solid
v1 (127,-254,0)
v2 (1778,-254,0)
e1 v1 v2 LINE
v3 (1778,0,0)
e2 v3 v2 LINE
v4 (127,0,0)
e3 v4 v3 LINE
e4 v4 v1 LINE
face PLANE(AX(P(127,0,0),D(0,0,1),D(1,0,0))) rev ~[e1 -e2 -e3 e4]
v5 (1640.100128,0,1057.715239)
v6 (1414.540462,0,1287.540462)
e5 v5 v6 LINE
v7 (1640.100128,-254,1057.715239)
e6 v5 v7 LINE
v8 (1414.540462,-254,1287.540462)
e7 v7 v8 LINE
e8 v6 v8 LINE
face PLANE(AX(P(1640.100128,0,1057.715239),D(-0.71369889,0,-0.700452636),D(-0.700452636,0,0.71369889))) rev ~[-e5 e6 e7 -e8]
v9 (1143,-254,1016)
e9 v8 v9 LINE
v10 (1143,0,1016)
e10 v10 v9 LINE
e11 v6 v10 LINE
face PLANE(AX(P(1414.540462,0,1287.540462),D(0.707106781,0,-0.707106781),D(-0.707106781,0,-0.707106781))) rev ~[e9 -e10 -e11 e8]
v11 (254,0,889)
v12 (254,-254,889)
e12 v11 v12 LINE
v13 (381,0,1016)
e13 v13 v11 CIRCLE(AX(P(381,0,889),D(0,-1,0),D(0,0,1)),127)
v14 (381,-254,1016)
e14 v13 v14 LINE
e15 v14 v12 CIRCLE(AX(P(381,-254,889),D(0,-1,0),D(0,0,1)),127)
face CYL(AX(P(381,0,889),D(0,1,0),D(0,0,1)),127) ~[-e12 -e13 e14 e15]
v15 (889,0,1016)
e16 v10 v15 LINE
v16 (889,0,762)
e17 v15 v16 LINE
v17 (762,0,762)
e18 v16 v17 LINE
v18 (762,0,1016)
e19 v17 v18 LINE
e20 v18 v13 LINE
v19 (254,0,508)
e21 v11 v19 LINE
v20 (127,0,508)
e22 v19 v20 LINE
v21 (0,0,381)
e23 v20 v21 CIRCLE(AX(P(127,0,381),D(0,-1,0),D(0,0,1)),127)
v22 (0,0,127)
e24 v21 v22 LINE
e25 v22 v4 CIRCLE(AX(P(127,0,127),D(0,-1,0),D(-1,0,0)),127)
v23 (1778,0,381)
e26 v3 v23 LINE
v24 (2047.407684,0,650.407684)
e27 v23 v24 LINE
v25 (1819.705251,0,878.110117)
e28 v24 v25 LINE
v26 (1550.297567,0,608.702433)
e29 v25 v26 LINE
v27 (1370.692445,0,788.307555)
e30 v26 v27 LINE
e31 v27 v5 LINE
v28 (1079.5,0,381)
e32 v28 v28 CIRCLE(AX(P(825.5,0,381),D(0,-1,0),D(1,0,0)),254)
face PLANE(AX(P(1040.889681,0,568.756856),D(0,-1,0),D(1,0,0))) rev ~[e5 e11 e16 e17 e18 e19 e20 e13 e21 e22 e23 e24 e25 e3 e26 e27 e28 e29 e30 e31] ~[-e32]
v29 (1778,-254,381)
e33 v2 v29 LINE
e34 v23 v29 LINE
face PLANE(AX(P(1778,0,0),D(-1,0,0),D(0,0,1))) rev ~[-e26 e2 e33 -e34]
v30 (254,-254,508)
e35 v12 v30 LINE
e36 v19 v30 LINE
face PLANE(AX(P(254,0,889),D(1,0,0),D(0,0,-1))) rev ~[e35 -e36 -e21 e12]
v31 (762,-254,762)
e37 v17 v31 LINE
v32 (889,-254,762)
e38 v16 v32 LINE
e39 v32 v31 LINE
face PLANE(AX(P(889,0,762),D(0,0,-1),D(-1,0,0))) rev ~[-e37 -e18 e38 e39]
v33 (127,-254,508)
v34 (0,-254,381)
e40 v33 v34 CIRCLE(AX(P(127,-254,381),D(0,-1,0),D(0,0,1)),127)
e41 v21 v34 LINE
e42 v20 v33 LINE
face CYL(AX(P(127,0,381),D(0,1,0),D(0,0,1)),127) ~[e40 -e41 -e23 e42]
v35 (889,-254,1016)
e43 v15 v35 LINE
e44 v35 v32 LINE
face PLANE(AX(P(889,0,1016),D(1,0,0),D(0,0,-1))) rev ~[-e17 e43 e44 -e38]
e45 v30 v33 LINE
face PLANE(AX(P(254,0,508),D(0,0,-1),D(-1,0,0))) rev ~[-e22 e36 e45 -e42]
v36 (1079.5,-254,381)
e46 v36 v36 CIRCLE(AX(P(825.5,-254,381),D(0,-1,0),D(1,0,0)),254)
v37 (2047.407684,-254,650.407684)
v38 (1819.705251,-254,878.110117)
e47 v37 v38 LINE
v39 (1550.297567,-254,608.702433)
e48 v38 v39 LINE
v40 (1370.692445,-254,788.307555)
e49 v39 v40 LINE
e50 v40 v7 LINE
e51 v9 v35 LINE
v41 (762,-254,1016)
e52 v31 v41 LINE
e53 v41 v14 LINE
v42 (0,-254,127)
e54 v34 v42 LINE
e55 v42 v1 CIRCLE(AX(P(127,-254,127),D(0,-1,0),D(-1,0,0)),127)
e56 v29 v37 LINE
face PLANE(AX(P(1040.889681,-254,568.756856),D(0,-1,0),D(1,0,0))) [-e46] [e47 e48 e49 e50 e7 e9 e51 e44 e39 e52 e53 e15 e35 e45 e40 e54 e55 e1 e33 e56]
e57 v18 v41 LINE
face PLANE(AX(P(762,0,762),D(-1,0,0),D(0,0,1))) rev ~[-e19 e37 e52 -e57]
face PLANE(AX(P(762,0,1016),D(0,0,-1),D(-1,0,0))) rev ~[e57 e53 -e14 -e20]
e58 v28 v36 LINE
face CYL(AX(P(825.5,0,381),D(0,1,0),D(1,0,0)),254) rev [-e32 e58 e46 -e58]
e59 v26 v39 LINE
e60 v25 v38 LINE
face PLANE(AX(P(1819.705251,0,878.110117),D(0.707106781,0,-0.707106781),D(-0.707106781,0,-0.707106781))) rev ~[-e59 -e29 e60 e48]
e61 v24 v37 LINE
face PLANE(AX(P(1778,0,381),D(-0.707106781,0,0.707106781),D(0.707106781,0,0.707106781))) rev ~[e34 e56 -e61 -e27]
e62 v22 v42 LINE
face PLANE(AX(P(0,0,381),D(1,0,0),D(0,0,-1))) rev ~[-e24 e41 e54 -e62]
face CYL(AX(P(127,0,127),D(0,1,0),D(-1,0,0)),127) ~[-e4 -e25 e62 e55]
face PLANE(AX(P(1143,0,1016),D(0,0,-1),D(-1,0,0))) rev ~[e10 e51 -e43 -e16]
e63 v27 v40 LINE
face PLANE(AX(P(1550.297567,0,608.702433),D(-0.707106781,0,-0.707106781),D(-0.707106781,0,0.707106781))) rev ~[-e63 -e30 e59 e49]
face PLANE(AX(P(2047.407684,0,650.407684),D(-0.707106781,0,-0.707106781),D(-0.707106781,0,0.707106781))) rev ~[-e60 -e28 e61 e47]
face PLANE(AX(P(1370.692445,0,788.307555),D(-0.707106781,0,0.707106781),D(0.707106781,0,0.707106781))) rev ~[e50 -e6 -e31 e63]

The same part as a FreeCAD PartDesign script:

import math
import FreeCAD as App
import Part
import Sketcher

V = App.Vector
Q = App.Units.Quantity

doc = App.newDocument("Part")
body = doc.addObject("PartDesign::Body", "Body")

sketch1 = doc.addObject("Sketcher::SketchObject", "Sketch")
body.addObject(sketch1)
sketch1.AttachmentSupport = (doc.XZ_Plane, [""])
sketch1.MapMode = "FlatFace"
sketch1.addGeometry(Part.ArcOfCircle(Part.Circle(V(127, 127, 0), V(0, 0, 1), 127), math.radians(180), math.radians(270)), False)
sketch1.addGeometry(Part.LineSegment(V(127, 0, 0), V(1778, 0, 0)), False)
sketch1.addGeometry(Part.LineSegment(V(1778, 0, 0), V(1778, 381, 0)), False)
sketch1.addGeometry(Part.LineSegment(V(1778, 381, 0), V(2047.407684, 650.407684, 0)), False)
sketch1.addGeometry(Part.LineSegment(V(2047.407684, 650.407684, 0), V(1819.705251, 878.110117, 0)), False)
sketch1.addGeometry(Part.LineSegment(V(1819.705251, 878.110117, 0), V(1550.297567, 608.702433, 0)), False)
sketch1.addGeometry(Part.LineSegment(V(1550.297567, 608.702433, 0), V(1370.692445, 788.307555, 0)), False)
sketch1.addGeometry(Part.LineSegment(V(1370.692445, 788.307555, 0), V(1640.100128, 1057.715239, 0)), False)
sketch1.addGeometry(Part.LineSegment(V(1640.100128, 1057.715239, 0), V(1414.540462, 1287.540462, 0)), False)
sketch1.addGeometry(Part.LineSegment(V(1414.540462, 1287.540462, 0), V(1143, 1016, 0)), False)
sketch1.addGeometry(Part.LineSegment(V(1143, 1016, 0), V(889, 1016, 0)), False)
sketch1.addGeometry(Part.LineSegment(V(889, 1016, 0), V(889, 762, 0)), False)
sketch1.addGeometry(Part.LineSegment(V(889, 762, 0), V(762, 762, 0)), False)
sketch1.addGeometry(Part.LineSegment(V(762, 762, 0), V(762, 1016, 0)), False)
sketch1.addGeometry(Part.LineSegment(V(762, 1016, 0), V(381, 1016, 0)), False)
sketch1.addGeometry(Part.ArcOfCircle(Part.Circle(V(381, 889, 0), V(0, 0, 1), 127), math.radians(90), math.radians(180)), False)
sketch1.addGeometry(Part.LineSegment(V(254, 889, 0), V(254, 508, 0)), False)
sketch1.addGeometry(Part.LineSegment(V(254, 508, 0), V(127, 508, 0)), False)
sketch1.addGeometry(Part.ArcOfCircle(Part.Circle(V(127, 381, 0), V(0, 0, 1), 127), math.radians(90), math.radians(180)), False)
sketch1.addGeometry(Part.LineSegment(V(0, 381, 0), V(0, 127, 0)), False)
sketch1.addGeometry(Part.Circle(V(825.5, 381, 0), V(0, 0, 1), 254), False)
sketch1.addConstraint(Sketcher.Constraint("Tangent", 0, 2, 1, 1))
sketch1.addConstraint(Sketcher.Constraint("Coincident", 1, 2, 2, 1))
sketch1.addConstraint(Sketcher.Constraint("Coincident", 2, 2, 3, 1))
sketch1.addConstraint(Sketcher.Constraint("Coincident", 3, 2, 4, 1))
sketch1.addConstraint(Sketcher.Constraint("Coincident", 4, 2, 5, 1))
sketch1.addConstraint(Sketcher.Constraint("Coincident", 5, 2, 6, 1))
sketch1.addConstraint(Sketcher.Constraint("Coincident", 6, 2, 7, 1))
sketch1.addConstraint(Sketcher.Constraint("Coincident", 7, 2, 8, 1))
sketch1.addConstraint(Sketcher.Constraint("Coincident", 8, 2, 9, 1))
sketch1.addConstraint(Sketcher.Constraint("Coincident", 9, 2, 10, 1))
sketch1.addConstraint(Sketcher.Constraint("Coincident", 10, 2, 11, 1))
sketch1.addConstraint(Sketcher.Constraint("Coincident", 11, 2, 12, 1))
sketch1.addConstraint(Sketcher.Constraint("Coincident", 12, 2, 13, 1))
sketch1.addConstraint(Sketcher.Constraint("Coincident", 13, 2, 14, 1))
sketch1.addConstraint(Sketcher.Constraint("Tangent", 14, 2, 15, 1))
sketch1.addConstraint(Sketcher.Constraint("Tangent", 15, 2, 16, 1))
sketch1.addConstraint(Sketcher.Constraint("Coincident", 16, 2, 17, 1))
sketch1.addConstraint(Sketcher.Constraint("Tangent", 17, 2, 18, 1))
sketch1.addConstraint(Sketcher.Constraint("Tangent", 18, 2, 19, 1))
sketch1.addConstraint(Sketcher.Constraint("Tangent", 19, 2, 0, 1))
sketch1.addConstraint(Sketcher.Constraint("Horizontal", 1))
sketch1.addConstraint(Sketcher.Constraint("Vertical", 2))
sketch1.addConstraint(Sketcher.Constraint("Horizontal", 10))
sketch1.addConstraint(Sketcher.Constraint("Vertical", 11))
sketch1.addConstraint(Sketcher.Constraint("Horizontal", 12))
sketch1.addConstraint(Sketcher.Constraint("Vertical", 13))
sketch1.addConstraint(Sketcher.Constraint("Horizontal", 14))
sketch1.addConstraint(Sketcher.Constraint("Vertical", 16))
sketch1.addConstraint(Sketcher.Constraint("Horizontal", 17))
sketch1.addConstraint(Sketcher.Constraint("Vertical", 19))
sketch1.addConstraint(Sketcher.Constraint("Equal", 0, 15))
sketch1.addConstraint(Sketcher.Constraint("Equal", 15, 18))
sketch1.addConstraint(Sketcher.Constraint("PointOnObject", 0, 2, -1))
sketch1.addConstraint(Sketcher.Constraint("PointOnObject", 18, 2, -2))
sketch1.addConstraint(Sketcher.Constraint("Perpendicular", 3, 4))
sketch1.addConstraint(Sketcher.Constraint("Perpendicular", 4, 5))
sketch1.addConstraint(Sketcher.Constraint("Perpendicular", 5, 6))
sketch1.addConstraint(Sketcher.Constraint("Perpendicular", 6, 7))
sketch1.addConstraint(Sketcher.Constraint("Parallel", 7, 9))
sketch1.addConstraint(Sketcher.Constraint("Horizontal", 18, 3, 20, 3))
sketch1.addConstraint(Sketcher.Constraint("Horizontal", 20, 3, 2, 2))
sketch1.addConstraint(Sketcher.Constraint("Horizontal", 10, 2, 13, 2))
sketch1.addConstraint(Sketcher.Constraint("Equal", 12, 17))
sketch1.addConstraint(Sketcher.Constraint("Equal", 14, 2))
sketch1.addConstraint(Sketcher.Constraint("Equal", 10, 11))
sketch1.addConstraint(Sketcher.Constraint("Equal", 2, 16))
sketch1.addConstraint(Sketcher.Constraint("Equal", 13, 19))
sketch1.addConstraint(Sketcher.Constraint("Equal", 3, 5))
sketch1.addConstraint(Sketcher.Constraint("Equal", 5, 7))
sketch1.addConstraint(Sketcher.Constraint("Equal", 4, 8))
sketch1.addConstraint(Sketcher.Constraint("Diameter", 20, Q("20 in")))
sketch1.addConstraint(Sketcher.Constraint("Radius", 0, Q("5 in")))
sketch1.addConstraint(Sketcher.Constraint("DistanceX", 1, 1, 1, 2, Q("65 in")))
sketch1.addConstraint(Sketcher.Constraint("DistanceX", 10, 2, 10, 1, Q("10 in")))
sketch1.addConstraint(Sketcher.Constraint("DistanceX", 12, 2, 12, 1, Q("5 in")))
sketch1.addConstraint(Sketcher.Constraint("Distance", 3, Q("15 in")))
sketch1.addConstraint(Sketcher.Constraint("Distance", 6, Q("10 in")))
sketch1.addConstraint(Sketcher.Constraint("Angle", 3, Q("45 deg")))
sketch1.addConstraint(Sketcher.Constraint("DistanceX", -1, 1, 20, 3, Q("32.5 in")))
sketch1.addConstraint(Sketcher.Constraint("DistanceX", 6, 2, 8, 2, Q("1.7262999 in")))
pad1 = doc.addObject("PartDesign::Pad", "Pad")
body.addObject(pad1)
pad1.Profile = sketch1
pad1.Length = Q("10 in")

doc.recompute()
